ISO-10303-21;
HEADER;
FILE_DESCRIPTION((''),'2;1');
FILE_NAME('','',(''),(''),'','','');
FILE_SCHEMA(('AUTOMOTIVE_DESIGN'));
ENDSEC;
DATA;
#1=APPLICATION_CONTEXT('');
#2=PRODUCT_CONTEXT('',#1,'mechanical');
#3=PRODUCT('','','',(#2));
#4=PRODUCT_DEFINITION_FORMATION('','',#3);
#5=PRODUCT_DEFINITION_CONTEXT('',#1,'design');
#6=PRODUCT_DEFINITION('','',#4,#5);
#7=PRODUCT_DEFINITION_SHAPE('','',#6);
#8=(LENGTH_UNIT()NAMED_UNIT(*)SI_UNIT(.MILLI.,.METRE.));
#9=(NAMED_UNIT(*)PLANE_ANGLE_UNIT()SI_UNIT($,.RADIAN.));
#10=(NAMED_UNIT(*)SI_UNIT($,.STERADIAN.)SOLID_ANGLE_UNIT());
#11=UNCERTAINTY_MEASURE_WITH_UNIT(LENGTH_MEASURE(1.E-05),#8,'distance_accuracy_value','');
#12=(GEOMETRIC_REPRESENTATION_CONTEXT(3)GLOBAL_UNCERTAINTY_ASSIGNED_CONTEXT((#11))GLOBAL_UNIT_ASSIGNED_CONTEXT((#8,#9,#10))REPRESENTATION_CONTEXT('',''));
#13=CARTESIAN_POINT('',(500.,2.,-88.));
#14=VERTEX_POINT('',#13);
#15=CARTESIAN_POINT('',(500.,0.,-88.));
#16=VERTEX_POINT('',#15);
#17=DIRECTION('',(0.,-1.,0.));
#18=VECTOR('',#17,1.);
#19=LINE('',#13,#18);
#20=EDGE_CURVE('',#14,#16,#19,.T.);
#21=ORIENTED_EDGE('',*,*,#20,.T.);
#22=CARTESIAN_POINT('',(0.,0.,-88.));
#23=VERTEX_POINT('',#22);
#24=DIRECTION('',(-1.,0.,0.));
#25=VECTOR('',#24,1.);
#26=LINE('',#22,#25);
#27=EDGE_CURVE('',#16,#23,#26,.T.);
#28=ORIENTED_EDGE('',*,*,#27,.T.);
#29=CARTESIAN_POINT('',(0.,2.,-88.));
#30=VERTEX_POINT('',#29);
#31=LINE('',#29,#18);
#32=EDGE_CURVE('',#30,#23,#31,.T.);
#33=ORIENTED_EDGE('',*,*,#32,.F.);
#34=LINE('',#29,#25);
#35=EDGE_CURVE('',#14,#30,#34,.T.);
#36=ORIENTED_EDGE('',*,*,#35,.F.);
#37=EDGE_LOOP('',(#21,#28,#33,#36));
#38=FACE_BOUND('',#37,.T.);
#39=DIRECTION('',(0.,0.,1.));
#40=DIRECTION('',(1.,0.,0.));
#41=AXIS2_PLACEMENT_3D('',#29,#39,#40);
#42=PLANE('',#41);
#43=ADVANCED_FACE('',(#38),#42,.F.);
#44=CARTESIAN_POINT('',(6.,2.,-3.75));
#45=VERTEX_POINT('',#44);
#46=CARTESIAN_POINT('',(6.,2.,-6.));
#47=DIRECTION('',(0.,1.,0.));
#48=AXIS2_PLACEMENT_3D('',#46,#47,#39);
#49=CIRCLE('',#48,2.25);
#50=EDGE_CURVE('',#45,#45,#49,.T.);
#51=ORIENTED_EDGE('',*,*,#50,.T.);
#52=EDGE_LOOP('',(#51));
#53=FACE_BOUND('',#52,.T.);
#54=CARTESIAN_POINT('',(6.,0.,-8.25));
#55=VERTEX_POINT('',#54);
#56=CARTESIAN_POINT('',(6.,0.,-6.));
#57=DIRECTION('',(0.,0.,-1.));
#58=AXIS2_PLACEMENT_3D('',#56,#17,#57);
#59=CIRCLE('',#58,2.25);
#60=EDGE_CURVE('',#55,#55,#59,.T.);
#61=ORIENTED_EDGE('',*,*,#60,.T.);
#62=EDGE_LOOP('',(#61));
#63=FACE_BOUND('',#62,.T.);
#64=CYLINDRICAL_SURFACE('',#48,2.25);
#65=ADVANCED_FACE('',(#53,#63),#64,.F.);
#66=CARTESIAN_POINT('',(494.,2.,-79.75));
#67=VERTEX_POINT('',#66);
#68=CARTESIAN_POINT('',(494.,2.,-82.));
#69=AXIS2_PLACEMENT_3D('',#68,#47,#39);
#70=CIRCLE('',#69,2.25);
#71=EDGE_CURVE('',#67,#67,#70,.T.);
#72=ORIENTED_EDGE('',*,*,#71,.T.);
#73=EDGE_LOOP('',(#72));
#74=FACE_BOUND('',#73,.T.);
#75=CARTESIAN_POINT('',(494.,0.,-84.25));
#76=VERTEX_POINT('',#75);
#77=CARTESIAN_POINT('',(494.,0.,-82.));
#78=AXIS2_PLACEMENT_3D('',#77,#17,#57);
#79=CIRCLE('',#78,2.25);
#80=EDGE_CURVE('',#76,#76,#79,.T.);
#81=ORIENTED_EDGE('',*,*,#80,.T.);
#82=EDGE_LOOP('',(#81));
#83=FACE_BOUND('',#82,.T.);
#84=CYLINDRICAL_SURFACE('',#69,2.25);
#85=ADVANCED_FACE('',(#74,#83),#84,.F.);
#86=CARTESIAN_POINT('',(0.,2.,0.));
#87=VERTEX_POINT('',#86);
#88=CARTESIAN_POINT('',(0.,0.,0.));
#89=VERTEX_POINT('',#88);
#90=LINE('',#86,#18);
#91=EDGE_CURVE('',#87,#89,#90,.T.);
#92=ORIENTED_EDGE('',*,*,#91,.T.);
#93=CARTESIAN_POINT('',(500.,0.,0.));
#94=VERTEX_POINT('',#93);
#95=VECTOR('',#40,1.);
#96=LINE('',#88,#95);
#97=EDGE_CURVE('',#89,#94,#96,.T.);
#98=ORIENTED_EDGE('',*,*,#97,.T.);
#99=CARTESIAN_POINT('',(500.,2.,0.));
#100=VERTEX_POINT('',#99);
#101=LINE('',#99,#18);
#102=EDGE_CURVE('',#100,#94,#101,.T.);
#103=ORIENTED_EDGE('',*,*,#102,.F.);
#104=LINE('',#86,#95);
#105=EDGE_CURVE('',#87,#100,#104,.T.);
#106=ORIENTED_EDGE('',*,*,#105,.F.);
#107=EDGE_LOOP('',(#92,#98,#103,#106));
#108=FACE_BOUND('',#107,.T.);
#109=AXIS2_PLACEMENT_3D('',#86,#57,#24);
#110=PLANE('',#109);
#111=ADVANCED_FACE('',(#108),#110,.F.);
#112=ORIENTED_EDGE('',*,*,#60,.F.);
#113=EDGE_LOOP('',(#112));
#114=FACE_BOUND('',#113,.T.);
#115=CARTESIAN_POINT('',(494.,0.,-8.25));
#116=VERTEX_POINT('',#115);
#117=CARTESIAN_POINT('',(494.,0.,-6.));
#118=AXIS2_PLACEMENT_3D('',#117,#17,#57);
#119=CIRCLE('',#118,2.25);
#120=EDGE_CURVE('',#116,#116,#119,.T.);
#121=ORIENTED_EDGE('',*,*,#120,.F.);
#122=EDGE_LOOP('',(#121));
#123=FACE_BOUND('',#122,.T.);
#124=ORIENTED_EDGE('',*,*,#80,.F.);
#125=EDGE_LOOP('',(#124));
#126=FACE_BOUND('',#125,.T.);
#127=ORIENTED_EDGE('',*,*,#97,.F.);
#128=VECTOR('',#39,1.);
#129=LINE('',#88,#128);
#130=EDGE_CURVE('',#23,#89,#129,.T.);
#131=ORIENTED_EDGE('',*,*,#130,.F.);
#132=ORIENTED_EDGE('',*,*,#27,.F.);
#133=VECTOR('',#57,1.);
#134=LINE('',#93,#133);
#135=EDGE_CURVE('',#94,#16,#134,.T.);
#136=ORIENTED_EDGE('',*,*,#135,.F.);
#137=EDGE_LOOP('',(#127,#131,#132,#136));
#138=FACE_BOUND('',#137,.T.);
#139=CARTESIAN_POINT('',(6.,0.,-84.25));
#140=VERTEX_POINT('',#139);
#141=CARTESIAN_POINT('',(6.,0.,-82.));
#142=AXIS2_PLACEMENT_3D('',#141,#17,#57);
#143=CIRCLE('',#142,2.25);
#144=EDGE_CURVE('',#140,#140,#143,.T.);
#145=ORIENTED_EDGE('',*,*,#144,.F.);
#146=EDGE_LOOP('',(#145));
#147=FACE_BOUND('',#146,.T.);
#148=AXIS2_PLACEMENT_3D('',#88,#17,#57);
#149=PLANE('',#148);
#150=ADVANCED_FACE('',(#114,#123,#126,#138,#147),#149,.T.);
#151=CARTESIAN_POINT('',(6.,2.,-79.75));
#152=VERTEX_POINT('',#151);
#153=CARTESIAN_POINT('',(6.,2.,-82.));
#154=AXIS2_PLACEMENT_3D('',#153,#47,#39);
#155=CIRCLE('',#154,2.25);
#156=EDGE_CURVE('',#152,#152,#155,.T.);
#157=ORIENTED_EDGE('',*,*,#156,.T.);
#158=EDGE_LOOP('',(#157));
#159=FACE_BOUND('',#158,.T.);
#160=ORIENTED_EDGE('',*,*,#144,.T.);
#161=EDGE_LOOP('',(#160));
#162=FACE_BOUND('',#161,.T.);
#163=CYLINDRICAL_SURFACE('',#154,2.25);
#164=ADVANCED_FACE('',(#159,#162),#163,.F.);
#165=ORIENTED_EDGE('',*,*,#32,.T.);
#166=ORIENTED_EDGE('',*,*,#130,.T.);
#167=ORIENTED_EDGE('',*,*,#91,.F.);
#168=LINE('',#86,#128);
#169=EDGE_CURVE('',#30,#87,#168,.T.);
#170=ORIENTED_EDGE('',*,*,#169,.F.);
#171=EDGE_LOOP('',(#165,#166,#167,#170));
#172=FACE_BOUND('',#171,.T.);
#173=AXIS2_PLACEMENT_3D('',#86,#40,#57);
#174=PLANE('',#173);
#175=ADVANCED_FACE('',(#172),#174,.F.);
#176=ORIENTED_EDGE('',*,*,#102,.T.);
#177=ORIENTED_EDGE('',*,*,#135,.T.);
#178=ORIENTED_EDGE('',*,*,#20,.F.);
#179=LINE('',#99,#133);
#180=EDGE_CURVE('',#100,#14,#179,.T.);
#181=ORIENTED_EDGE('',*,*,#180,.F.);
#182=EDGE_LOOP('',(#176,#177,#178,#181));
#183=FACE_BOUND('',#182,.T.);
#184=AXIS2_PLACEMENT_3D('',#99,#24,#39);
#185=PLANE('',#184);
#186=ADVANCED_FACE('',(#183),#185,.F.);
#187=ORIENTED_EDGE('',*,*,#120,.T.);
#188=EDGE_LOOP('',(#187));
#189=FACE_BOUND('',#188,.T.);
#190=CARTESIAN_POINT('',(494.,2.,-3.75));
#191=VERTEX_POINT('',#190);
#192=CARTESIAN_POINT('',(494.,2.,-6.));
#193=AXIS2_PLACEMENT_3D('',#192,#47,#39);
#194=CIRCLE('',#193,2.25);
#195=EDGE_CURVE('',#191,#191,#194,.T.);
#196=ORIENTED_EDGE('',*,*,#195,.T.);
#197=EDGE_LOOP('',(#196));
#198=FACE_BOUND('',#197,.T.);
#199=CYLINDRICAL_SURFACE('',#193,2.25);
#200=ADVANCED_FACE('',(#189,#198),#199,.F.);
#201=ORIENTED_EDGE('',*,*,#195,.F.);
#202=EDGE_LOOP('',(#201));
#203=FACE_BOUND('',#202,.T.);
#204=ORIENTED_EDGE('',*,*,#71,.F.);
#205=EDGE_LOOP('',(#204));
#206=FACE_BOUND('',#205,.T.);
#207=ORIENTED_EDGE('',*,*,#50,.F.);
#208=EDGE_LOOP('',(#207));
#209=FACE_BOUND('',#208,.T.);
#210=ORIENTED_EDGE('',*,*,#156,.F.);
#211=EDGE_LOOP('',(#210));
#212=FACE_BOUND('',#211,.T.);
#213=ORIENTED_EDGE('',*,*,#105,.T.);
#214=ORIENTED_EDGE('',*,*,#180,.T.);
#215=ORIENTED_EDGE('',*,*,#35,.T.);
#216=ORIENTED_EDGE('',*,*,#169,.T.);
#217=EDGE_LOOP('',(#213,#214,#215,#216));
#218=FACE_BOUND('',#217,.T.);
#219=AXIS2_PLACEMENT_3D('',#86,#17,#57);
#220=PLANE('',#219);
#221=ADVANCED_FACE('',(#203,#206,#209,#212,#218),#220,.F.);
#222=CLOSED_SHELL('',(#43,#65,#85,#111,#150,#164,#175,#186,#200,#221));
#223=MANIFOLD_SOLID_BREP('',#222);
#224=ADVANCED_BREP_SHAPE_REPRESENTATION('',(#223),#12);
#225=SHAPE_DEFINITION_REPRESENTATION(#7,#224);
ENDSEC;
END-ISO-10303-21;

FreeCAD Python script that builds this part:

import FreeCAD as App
import Part
import Sketcher
from FreeCAD import Vector

doc = App.newDocument("Part")
params = doc.addObject("Spreadsheet::Sheet", "Params")
for row, (alias, value) in enumerate([
    ("sketch1_width", "500 mm"),
    ("sketch1_height", "88 mm"),
    ("pad1_length", "2 mm"),
    ("sketch2_diameter", "4.5 mm"),
    ("hole_diameter", "4.5 mm"),
    ("hole_depth", "2 mm"),
], start=1):
    params.set(f"A{row}", alias)
    params.set(f"B{row}", "=" + value)
    params.setAlias(f"B{row}", alias)

body = doc.addObject("PartDesign::Body", "Body")

sketch1 = body.newObject("Sketcher::SketchObject", "Sketch")
sketch1.AttachmentSupport = (doc.getObject("XZ_Plane"), [""])
sketch1.MapMode = "FlatFace"
sketch1.addGeometry([
    Part.LineSegment(Vector(0, -88, 0), Vector(0, 0, 0)),
    Part.LineSegment(Vector(0, 0, 0), Vector(500, 0, 0)),
    Part.LineSegment(Vector(500, 0, 0), Vector(500, -88, 0)),
    Part.LineSegment(Vector(500, -88, 0), Vector(0, -88, 0)),
], False)
sketch1.addConstraint([
    Sketcher.Constraint("Coincident", 0, 2, 1, 1),
    Sketcher.Constraint("Coincident", 1, 2, 2, 1),
    Sketcher.Constraint("Coincident", 2, 2, 3, 1),
    Sketcher.Constraint("Coincident", 3, 2, 0, 1),
    Sketcher.Constraint("Vertical", 0),
    Sketcher.Constraint("Horizontal", 1),
    Sketcher.Constraint("Vertical", 2),
    Sketcher.Constraint("Horizontal", 3),
    Sketcher.Constraint("Coincident", 0, 2, -1, 1),
    Sketcher.Constraint("DistanceX", 1, 1, 1, 2, 500.0),
    Sketcher.Constraint("DistanceY", 0, 1, 0, 2, 88.0),
])
sketch1.setExpression("Constraints[9]", "Params.sketch1_width")
sketch1.setExpression("Constraints[10]", "Params.sketch1_height")
pad1 = body.newObject("PartDesign::Pad", "Pad")
pad1.Profile = sketch1
pad1.setExpression("Length", "Params.pad1_length")
pad1.Reversed = True

sketch2 = body.newObject("Sketcher::SketchObject", "Sketch001")
sketch2.AttachmentSupport = (doc.getObject("XZ_Plane"), [""])
sketch2.MapMode = "FlatFace"
sketch2.AttachmentOffset = App.Placement(Vector(0, 0, -2), App.Rotation())
sketch2.addGeometry([
    Part.Circle(Vector(6, -82, 0), Vector(0, 0, 1), 2.2),
    Part.Circle(Vector(6, -6, 0), Vector(0, 0, 1), 2.2),
    Part.Circle(Vector(494, -6, 0), Vector(0, 0, 1), 2.2),
    Part.Circle(Vector(494, -82, 0), Vector(0, 0, 1), 2.2),
], False)
sketch2.addConstraint([
    Sketcher.Constraint("Equal", 0, 1),
    Sketcher.Constraint("Equal", 1, 2),
    Sketcher.Constraint("Equal", 2, 3),
    Sketcher.Constraint("Horizontal", 1, 3, 2, 3),
    Sketcher.Constraint("Horizontal", 0, 3, 3, 3),
    Sketcher.Constraint("Vertical", 0, 3, 1, 3),
    Sketcher.Constraint("Vertical", 2, 3, 3, 3),
    Sketcher.Constraint("Diameter", 0, 4.5),
    Sketcher.Constraint("DistanceX", -1, 1, 0, 3, 6.0),
    Sketcher.Constraint("DistanceY", 0, 3, -1, 1, 82.0),
    Sketcher.Constraint("DistanceY", 1, 3, -1, 1, 6.0),
    Sketcher.Constraint("DistanceX", -1, 1, 2, 3, 494.0),
])
sketch2.setExpression("Constraints[7]", "Params.sketch2_diameter")
doc.recompute()
hole = body.newObject("PartDesign::Hole", "Hole")
hole.Profile = sketch2
hole.ThreadType = "None"
hole.setExpression("Diameter", "Params.hole_diameter")
hole.DepthType = "Dimension"
hole.setExpression("Depth", "Params.hole_depth")
hole.DrillPoint = "Flat"
hole.Reversed = True

doc.recompute()
